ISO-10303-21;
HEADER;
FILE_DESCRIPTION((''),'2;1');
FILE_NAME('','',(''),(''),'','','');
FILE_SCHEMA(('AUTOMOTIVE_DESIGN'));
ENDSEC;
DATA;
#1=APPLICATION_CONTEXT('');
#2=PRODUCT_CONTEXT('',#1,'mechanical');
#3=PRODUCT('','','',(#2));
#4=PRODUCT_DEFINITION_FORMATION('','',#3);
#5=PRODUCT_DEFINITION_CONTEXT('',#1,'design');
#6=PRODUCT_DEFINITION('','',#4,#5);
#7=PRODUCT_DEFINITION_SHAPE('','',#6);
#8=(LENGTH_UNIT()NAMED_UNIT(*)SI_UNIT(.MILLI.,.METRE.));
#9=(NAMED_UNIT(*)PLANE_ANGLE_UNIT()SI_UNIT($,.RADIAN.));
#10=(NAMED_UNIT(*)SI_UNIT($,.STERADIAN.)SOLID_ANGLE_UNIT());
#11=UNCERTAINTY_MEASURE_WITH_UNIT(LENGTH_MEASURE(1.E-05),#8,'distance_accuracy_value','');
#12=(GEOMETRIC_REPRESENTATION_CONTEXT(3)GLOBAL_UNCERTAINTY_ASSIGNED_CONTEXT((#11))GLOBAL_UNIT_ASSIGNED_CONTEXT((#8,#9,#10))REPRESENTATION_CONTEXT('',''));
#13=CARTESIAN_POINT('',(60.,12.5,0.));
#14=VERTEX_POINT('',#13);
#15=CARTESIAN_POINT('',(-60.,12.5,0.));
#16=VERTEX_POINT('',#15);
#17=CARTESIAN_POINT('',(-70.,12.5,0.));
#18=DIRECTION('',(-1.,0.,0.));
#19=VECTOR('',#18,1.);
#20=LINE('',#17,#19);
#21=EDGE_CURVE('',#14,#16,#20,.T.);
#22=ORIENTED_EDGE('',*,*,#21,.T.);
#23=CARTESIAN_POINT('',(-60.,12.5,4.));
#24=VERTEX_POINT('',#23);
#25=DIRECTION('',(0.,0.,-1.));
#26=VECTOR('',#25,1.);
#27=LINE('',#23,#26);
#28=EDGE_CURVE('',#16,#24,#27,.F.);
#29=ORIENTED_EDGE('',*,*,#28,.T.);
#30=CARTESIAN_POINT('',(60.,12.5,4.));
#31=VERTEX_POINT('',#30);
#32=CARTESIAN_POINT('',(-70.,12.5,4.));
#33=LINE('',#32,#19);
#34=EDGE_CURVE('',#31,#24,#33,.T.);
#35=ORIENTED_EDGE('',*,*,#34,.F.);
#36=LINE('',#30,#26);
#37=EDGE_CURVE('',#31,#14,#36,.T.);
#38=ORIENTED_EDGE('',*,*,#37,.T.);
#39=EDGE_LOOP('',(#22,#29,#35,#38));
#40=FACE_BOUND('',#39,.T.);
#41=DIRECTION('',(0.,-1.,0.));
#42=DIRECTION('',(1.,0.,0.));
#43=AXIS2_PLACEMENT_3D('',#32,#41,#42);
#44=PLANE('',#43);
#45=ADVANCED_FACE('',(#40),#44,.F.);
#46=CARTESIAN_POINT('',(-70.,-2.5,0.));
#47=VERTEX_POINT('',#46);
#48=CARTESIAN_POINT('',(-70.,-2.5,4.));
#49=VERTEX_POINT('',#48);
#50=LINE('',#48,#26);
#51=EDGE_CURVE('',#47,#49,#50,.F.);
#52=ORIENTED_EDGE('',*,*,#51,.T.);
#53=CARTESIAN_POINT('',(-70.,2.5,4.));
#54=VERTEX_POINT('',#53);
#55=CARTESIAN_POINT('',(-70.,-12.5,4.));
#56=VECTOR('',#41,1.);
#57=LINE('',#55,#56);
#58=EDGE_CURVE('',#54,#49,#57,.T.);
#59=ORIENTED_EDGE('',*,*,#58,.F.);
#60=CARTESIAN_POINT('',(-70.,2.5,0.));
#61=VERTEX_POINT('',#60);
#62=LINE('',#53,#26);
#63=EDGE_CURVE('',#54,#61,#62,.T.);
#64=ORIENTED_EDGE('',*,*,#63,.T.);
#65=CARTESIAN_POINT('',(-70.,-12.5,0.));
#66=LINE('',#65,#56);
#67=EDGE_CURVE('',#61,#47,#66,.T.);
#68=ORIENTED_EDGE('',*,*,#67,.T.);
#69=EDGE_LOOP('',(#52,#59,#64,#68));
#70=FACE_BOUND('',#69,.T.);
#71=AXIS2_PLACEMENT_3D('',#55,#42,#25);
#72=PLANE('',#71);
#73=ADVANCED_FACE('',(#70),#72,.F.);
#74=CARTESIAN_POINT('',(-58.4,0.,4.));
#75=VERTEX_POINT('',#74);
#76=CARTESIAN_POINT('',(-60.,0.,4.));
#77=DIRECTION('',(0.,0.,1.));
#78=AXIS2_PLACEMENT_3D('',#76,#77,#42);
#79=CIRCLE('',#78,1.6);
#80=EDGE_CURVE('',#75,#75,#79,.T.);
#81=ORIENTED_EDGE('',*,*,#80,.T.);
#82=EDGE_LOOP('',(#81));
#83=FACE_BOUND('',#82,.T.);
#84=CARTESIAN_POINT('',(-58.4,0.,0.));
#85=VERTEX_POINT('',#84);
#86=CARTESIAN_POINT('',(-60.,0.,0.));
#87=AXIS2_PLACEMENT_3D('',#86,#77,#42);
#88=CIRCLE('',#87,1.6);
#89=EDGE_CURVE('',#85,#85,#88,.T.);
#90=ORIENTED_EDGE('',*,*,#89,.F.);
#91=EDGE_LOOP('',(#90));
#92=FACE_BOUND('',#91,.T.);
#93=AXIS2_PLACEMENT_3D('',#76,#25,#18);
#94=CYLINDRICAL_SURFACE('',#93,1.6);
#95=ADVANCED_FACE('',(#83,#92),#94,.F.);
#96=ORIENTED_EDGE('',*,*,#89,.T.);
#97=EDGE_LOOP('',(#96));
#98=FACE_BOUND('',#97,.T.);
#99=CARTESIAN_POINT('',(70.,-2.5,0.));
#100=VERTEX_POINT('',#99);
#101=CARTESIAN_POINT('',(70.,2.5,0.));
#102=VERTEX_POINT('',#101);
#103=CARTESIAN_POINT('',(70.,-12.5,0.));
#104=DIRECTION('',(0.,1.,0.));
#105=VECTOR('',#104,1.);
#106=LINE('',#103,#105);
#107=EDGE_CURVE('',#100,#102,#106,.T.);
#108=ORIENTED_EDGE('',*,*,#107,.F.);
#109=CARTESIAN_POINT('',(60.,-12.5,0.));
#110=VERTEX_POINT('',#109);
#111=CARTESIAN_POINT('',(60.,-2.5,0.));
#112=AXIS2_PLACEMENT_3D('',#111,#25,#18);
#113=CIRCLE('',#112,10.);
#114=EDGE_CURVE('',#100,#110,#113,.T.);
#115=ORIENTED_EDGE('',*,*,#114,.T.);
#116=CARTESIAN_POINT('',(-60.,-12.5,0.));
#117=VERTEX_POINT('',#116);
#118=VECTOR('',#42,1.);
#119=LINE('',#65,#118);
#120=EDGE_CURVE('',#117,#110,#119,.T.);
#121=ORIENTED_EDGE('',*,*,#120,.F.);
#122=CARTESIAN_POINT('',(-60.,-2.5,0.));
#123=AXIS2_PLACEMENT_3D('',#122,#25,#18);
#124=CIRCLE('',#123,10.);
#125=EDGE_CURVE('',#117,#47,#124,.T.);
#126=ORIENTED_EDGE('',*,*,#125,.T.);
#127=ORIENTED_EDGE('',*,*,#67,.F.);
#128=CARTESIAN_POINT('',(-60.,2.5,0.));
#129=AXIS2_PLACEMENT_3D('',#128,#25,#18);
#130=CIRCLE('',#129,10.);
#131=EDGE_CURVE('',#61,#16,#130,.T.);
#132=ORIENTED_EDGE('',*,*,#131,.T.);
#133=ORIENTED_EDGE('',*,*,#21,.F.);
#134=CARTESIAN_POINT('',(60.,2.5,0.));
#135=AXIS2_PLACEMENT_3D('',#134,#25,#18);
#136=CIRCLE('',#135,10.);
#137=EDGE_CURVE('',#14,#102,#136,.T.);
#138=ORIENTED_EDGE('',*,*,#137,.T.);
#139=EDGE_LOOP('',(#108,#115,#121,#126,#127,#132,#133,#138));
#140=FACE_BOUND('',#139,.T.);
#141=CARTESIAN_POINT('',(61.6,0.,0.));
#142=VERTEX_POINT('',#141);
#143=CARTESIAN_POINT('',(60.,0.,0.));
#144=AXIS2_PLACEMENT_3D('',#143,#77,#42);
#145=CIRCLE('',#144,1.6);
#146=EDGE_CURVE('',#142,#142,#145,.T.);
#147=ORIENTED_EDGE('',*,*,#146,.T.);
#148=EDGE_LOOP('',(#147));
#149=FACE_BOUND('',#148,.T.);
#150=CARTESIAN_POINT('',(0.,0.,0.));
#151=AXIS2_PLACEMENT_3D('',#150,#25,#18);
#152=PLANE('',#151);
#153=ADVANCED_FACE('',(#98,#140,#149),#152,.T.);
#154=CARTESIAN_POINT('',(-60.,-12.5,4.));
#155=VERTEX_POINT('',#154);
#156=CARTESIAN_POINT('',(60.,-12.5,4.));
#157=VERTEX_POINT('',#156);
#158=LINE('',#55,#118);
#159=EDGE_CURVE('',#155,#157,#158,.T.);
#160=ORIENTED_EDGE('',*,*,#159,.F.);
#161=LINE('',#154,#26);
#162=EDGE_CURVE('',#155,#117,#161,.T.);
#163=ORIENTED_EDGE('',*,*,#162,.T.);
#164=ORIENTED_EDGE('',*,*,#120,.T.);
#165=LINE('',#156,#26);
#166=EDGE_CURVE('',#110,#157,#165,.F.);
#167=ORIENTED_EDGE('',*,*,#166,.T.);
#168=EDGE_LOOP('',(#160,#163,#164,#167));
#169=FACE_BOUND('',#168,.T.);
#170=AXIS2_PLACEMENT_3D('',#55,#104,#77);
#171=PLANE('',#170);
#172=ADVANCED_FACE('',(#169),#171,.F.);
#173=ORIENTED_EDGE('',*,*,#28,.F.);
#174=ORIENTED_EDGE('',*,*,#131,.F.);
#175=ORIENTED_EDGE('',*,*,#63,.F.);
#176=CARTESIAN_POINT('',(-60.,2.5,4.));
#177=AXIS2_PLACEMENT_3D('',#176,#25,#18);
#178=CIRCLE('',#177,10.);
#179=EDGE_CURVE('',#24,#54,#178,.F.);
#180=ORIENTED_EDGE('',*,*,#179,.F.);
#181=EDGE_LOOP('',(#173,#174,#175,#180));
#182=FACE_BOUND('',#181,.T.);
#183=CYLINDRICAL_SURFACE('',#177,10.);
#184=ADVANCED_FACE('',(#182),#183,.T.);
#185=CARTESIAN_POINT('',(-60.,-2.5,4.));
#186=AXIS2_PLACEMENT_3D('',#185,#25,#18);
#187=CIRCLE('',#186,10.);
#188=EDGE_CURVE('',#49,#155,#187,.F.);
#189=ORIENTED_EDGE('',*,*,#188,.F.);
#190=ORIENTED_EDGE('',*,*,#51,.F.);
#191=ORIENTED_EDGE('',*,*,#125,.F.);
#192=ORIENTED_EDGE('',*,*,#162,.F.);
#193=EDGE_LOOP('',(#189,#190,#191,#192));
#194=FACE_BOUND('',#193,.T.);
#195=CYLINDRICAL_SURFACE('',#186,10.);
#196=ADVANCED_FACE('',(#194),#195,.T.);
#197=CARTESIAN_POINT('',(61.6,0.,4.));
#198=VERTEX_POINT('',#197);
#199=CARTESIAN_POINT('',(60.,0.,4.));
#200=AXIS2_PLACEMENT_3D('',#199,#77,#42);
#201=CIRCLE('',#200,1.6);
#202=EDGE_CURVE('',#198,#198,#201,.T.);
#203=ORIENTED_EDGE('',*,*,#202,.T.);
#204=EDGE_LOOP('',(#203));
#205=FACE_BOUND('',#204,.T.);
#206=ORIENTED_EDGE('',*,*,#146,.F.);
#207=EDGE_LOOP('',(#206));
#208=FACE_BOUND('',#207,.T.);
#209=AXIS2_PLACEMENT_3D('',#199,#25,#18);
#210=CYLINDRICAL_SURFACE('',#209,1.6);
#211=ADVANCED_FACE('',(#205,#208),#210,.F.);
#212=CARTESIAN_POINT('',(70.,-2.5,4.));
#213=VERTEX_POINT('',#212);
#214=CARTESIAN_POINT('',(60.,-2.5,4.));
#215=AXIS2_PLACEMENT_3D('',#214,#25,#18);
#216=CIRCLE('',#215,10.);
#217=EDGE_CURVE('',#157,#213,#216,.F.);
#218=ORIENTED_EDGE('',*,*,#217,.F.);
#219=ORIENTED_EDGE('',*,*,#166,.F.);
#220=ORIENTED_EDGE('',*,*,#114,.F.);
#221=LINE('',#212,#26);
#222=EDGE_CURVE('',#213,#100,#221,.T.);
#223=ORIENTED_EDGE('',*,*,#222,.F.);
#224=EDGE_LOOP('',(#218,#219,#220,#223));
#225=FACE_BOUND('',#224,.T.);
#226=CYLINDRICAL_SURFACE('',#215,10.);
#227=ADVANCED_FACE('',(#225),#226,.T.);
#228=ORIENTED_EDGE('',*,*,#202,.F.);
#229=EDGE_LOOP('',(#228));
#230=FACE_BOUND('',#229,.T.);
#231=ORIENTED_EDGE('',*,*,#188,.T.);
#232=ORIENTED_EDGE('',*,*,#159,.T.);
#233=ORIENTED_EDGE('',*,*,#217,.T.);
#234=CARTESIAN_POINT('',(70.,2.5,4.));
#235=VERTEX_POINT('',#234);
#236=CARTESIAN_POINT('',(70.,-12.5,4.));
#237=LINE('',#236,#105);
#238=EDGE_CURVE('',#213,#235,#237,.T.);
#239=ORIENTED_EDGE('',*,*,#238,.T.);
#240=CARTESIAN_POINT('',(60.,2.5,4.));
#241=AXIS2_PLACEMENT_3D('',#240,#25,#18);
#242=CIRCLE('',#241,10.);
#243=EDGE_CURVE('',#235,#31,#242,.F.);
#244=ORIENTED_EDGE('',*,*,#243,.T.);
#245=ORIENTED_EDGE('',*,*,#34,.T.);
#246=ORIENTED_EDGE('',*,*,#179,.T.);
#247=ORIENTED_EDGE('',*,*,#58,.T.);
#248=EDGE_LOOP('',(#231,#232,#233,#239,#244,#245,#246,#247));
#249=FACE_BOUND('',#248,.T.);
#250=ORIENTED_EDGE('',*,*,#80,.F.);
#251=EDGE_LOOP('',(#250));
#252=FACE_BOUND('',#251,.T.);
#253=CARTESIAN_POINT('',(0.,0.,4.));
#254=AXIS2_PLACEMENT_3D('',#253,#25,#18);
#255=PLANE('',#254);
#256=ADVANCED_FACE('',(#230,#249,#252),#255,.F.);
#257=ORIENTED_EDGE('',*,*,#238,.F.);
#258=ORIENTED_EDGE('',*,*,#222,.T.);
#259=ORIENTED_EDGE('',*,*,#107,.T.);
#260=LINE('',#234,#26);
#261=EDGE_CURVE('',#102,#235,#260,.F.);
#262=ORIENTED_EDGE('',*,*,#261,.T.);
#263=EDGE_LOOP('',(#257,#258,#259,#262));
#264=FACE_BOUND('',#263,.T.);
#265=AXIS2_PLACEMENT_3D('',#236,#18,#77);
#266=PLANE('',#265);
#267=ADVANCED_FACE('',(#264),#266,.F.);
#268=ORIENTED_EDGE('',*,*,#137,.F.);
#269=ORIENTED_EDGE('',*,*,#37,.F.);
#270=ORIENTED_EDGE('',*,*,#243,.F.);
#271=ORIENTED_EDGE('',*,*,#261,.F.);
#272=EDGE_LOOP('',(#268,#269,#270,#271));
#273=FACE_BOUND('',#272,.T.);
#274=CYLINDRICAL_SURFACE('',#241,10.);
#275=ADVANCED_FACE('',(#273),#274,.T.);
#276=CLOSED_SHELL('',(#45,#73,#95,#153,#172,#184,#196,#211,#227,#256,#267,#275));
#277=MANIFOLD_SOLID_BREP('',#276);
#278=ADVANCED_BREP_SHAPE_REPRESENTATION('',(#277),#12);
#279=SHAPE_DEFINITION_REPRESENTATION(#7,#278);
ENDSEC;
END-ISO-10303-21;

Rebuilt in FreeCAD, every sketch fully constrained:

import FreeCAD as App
import Part
import Sketcher


def edges_at(feature, points):
    """Names of the edges that pass closest to the given points."""
    edges = feature.Shape.Edges
    near = lambda p: min(range(len(edges)), key=lambda i: edges[i].distToShape(Part.Vertex(*p))[0])
    return sorted({f"Edge{near(p) + 1}" for p in points})

doc = App.newDocument("Part")
body = doc.addObject("PartDesign::Body", "Body")

# Sketch on XY plane
sketch1 = body.newObject("Sketcher::SketchObject", "Sketch")
sketch1.AttachmentSupport = (doc.getObject("XY_Plane"), [""])
sketch1.MapMode = "FlatFace"
sketch1.addGeometry([
    Part.LineSegment(App.Vector(-70, 12.5, 0), App.Vector(-70, -12.5, 0)),  # 0
    Part.LineSegment(App.Vector(-70, -12.5, 0), App.Vector(70, -12.5, 0)),  # 1
    Part.LineSegment(App.Vector(70, -12.5, 0), App.Vector(70, 12.5, 0)),  # 2
    Part.LineSegment(App.Vector(70, 12.5, 0), App.Vector(-70, 12.5, 0)),  # 3
    Part.Circle(App.Vector(-60, 0, 0), App.Vector(0, 0, 1), 1.6),  # 4
    Part.Circle(App.Vector(60, 0, 0), App.Vector(0, 0, 1), 1.6),  # 5
], False)
sketch1.addConstraint([
    Sketcher.Constraint("Coincident", 0, 2, 1, 1),
    Sketcher.Constraint("Coincident", 1, 2, 2, 1),
    Sketcher.Constraint("Coincident", 2, 2, 3, 1),
    Sketcher.Constraint("Coincident", 3, 2, 0, 1),
    Sketcher.Constraint("Vertical", 0),
    Sketcher.Constraint("Horizontal", 1),
    Sketcher.Constraint("Vertical", 2),
    Sketcher.Constraint("Horizontal", 3),
    Sketcher.Constraint("Equal", 4, 5),
    Sketcher.Constraint("Symmetric", 4, 3, 5, 3, -1, 1),
    Sketcher.Constraint("Symmetric", 0, 2, 2, 2, -1, 1),
    Sketcher.Constraint("PointOnObject", 4, 3, -1),
    Sketcher.Constraint("Diameter", 4, 3.2),
    Sketcher.Constraint("DistanceX", 1, 1, 1, 2, 140.0),
    Sketcher.Constraint("DistanceY", 0, 2, 0, 1, 25.0),
    Sketcher.Constraint("DistanceX", 4, 3, -1, 1, 60.0),
])
pad1 = body.newObject("PartDesign::Pad", "Pad")
pad1.Profile = sketch1
pad1.Length = 4
doc.recompute()

fillet = body.newObject("PartDesign::Fillet", "Fillet")
fillet.Base = (pad1, edges_at(pad1, [
    (70, -12.5, 2),
    (-70, -12.5, 2),
    (-70, 12.5, 2),
    (70, 12.5, 2),
]))
fillet.Radius = 10

doc.recompute()
